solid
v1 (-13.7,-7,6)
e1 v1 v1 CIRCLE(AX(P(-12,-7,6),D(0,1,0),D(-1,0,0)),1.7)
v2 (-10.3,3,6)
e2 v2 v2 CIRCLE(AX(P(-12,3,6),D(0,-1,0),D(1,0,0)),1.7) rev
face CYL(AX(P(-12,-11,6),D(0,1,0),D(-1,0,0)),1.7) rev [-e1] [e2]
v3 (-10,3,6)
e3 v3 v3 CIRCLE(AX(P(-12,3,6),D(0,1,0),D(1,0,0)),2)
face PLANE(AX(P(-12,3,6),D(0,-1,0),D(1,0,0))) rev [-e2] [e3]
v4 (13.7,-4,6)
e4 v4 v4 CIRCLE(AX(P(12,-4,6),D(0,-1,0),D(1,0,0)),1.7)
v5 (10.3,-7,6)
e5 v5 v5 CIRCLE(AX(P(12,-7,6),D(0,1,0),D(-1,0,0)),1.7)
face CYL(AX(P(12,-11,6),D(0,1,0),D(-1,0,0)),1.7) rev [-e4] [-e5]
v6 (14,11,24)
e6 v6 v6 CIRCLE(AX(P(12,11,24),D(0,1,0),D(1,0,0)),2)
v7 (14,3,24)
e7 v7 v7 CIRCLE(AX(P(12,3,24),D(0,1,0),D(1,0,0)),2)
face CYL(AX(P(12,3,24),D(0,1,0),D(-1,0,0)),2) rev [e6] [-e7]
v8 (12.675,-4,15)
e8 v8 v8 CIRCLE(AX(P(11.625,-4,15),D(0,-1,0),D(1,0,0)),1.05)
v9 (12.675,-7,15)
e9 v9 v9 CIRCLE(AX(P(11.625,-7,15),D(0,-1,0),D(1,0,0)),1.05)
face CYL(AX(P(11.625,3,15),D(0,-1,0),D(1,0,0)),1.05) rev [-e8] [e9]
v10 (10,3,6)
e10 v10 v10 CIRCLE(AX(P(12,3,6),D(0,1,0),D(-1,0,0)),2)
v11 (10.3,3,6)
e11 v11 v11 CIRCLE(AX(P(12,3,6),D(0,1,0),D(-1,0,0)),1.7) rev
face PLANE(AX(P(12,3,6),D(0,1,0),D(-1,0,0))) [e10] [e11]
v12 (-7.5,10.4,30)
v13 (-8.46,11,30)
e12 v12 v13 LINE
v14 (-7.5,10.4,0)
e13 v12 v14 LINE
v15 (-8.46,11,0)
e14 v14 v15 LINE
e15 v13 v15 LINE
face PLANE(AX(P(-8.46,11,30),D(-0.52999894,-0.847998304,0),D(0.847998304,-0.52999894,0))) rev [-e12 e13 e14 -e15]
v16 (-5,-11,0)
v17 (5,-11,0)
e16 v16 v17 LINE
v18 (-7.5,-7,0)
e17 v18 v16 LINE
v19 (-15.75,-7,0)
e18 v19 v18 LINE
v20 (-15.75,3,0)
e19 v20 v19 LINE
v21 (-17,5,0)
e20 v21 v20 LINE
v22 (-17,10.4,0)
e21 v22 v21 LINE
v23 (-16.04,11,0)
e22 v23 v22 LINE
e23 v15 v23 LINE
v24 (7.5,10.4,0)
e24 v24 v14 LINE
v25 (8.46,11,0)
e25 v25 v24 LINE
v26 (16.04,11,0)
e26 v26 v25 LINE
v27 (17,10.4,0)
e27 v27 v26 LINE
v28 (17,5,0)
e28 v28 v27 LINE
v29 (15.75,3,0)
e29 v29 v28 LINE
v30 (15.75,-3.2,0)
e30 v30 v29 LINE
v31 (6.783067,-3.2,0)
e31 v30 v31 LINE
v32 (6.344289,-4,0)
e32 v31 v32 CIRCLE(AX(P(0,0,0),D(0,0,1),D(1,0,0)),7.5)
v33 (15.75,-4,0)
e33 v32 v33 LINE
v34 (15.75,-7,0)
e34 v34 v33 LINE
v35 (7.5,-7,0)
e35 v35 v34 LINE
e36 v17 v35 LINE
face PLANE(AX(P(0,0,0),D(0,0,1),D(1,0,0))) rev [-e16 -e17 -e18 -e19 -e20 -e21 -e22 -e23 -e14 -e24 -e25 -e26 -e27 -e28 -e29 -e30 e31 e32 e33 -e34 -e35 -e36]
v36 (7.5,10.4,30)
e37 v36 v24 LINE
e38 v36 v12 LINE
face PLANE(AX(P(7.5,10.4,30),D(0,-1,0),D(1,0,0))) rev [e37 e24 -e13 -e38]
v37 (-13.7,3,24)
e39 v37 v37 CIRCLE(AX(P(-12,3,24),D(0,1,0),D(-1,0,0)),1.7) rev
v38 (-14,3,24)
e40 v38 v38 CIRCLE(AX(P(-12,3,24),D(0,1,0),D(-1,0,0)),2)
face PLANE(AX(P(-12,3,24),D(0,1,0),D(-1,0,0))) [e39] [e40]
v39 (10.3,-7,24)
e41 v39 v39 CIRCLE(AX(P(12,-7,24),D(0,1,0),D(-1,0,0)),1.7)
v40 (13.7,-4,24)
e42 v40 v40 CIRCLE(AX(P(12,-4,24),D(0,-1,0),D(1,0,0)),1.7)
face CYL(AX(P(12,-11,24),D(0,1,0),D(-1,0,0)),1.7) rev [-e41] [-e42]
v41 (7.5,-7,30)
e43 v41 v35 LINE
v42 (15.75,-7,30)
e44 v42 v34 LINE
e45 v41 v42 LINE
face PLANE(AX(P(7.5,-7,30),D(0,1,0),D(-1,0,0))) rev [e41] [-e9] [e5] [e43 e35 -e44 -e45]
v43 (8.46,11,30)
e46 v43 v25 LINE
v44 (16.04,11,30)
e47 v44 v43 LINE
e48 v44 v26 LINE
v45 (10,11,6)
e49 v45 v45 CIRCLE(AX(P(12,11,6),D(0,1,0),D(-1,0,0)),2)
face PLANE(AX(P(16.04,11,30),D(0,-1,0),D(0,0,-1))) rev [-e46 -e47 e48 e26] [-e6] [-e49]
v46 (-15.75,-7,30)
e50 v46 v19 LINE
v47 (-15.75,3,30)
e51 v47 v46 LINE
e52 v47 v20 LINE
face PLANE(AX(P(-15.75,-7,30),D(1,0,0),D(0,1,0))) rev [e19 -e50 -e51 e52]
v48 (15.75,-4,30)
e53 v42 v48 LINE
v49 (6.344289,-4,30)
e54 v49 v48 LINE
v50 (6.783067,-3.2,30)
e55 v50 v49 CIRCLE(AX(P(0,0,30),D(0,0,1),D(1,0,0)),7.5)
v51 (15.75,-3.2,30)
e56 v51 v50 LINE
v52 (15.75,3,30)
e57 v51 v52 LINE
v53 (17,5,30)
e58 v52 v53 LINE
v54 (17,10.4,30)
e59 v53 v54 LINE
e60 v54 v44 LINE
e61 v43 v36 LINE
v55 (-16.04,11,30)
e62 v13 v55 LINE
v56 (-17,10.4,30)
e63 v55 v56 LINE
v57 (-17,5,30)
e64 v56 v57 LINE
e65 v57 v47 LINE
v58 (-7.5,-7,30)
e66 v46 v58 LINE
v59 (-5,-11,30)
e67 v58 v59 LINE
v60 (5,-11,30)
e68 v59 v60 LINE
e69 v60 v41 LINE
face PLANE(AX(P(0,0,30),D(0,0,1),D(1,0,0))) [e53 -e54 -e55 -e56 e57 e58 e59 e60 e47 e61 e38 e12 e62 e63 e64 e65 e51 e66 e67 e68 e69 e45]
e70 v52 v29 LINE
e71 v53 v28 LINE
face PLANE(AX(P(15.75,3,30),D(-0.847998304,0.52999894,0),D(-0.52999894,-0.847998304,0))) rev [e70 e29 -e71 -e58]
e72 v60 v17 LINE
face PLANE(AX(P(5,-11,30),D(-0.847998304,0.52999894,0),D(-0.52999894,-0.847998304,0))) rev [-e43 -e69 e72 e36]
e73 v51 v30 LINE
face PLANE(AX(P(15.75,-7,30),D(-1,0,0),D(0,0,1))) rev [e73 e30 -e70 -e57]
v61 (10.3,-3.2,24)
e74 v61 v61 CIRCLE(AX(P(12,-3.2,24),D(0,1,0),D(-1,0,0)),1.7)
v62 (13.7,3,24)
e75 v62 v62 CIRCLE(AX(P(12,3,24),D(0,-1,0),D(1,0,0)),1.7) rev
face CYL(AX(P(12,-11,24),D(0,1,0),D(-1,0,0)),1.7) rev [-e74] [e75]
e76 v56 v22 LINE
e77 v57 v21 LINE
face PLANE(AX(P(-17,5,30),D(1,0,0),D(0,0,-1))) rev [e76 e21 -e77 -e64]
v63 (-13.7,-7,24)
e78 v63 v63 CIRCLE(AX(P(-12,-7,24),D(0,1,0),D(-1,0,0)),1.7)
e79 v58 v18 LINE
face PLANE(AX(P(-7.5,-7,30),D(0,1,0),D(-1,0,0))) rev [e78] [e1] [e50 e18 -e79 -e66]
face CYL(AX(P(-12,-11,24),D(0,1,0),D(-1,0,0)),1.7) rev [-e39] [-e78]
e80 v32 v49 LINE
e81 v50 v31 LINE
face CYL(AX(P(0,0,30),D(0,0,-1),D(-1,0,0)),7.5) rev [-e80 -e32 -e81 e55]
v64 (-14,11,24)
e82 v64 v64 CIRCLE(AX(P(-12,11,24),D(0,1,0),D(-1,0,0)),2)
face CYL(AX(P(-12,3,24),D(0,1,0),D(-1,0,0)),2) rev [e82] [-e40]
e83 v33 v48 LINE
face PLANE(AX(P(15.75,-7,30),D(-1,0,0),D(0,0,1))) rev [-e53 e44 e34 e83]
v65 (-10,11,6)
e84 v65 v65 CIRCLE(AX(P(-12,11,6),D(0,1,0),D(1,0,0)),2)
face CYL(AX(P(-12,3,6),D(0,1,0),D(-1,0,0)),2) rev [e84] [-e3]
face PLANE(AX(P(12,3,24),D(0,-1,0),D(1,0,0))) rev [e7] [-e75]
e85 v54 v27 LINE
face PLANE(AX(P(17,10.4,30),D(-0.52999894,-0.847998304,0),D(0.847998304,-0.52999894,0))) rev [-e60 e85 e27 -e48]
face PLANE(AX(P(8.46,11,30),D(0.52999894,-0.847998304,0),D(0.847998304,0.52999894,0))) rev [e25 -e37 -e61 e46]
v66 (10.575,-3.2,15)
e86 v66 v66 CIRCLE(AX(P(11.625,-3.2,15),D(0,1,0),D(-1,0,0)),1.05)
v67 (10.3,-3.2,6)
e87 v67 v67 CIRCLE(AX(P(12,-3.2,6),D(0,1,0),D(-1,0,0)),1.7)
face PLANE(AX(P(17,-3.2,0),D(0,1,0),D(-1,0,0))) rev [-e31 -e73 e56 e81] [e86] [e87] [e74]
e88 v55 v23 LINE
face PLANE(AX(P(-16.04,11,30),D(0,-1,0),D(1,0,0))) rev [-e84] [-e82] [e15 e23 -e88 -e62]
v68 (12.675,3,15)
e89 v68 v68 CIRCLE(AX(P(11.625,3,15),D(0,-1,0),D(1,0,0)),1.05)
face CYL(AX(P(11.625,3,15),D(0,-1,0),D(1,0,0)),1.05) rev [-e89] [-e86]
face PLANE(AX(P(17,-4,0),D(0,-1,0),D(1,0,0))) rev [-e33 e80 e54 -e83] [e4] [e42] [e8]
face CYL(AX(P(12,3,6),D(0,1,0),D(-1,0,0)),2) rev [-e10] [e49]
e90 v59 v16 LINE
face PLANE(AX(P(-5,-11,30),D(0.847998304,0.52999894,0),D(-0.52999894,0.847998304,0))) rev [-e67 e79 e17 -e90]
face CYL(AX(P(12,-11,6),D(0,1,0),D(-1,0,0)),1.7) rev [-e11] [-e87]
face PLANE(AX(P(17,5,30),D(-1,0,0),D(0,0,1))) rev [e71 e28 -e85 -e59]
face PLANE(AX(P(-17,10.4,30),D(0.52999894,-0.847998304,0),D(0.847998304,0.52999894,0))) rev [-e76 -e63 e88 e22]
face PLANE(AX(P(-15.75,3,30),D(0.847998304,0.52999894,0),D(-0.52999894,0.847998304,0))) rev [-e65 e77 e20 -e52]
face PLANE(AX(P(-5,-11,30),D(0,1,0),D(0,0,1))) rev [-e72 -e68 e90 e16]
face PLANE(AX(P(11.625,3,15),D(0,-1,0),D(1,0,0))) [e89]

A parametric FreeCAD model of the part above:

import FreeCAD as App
import Part
import Sketcher
from FreeCAD import Vector
Q = App.Units.Quantity


def add_polygon(sketch, points):
    """Adds a closed chain of lines whose ends are joined by coincident constraints."""
    first, n = sketch.GeometryCount, len(points)
    for a, b in zip(points, points[1:] + points[:1]):
        sketch.addGeometry(Part.LineSegment(App.Vector(*a, 0), App.Vector(*b, 0)), False)
    for i in range(n):
        sketch.addConstraint(Sketcher.Constraint("Coincident", first + i, 2, first + (i + 1) % n, 1))

doc = App.newDocument("Part")
body = doc.addObject("PartDesign::Body", "Body")

sketch1 = body.newObject("Sketcher::SketchObject", "Sketch")
sketch1.AttachmentSupport = (doc.getObject("XY_Plane"), [""])
sketch1.MapMode = "FlatFace"
add_polygon(sketch1, [(-5, -11), (5, -11), (7.5, -7), (15.8, -7), (15.8, 3), (17, 5), (17, 10.4), (16, 11), (8.5, 11), (7.5, 10.4), (-7.5, 10.4), (-8.5, 11), (-16, 11), (-17, 10.4), (-17, 5), (-15.8, 3), (-15.8, -7), (-7.5, -7)])
sketch1.addGeometry(Part.Circle(Vector(0, 0, 0), Vector(0, 0, 1), 7.5), False)
sketch1.addConstraint(Sketcher.Constraint("Horizontal", 0))
sketch1.addConstraint(Sketcher.Constraint("Horizontal", 2))
sketch1.addConstraint(Sketcher.Constraint("Vertical", 3))
sketch1.addConstraint(Sketcher.Constraint("Vertical", 5))
sketch1.addConstraint(Sketcher.Constraint("Horizontal", 7))
sketch1.addConstraint(Sketcher.Constraint("Horizontal", 9))
sketch1.addConstraint(Sketcher.Constraint("Horizontal", 11))
sketch1.addConstraint(Sketcher.Constraint("Vertical", 13))
sketch1.addConstraint(Sketcher.Constraint("Vertical", 15))
sketch1.addConstraint(Sketcher.Constraint("Horizontal", 16))
sketch1.addConstraint(Sketcher.Constraint("Coincident", 18, 3, -1, 1))
sketch1.addConstraint(Sketcher.Constraint("Symmetric", 7, 2, 10, 2, -2))
sketch1.addConstraint(Sketcher.Constraint("Symmetric", 5, 2, 12, 2, -2))
sketch1.addConstraint(Sketcher.Constraint("Symmetric", 3, 2, 14, 2, -2))
sketch1.addConstraint(Sketcher.Constraint("Symmetric", 1, 2, 16, 2, -2))
sketch1.addConstraint(Sketcher.Constraint("Parallel", 1, 4))
sketch1.addConstraint(Sketcher.Constraint("Perpendicular", 4, 6))
sketch1.addConstraint(Sketcher.Constraint("Parallel", 6, 10))
sketch1.addConstraint(Sketcher.Constraint("Parallel", 8, 12))
sketch1.addConstraint(Sketcher.Constraint("Perpendicular", 12, 14))
sketch1.addConstraint(Sketcher.Constraint("Parallel", 14, 17))
sketch1.addConstraint(Sketcher.Constraint("Horizontal", 5, 2, 8, 2))
sketch1.addConstraint(Sketcher.Constraint("Horizontal", 4, 2, 13, 2))
sketch1.addConstraint(Sketcher.Constraint("Vertical", 1, 2, 8, 2))
sketch1.addConstraint(Sketcher.Constraint("Equal", 0, 3))
sketch1.addConstraint(Sketcher.Constraint("Diameter", 18, Q("15 mm")))
sketch1.addConstraint(Sketcher.Constraint("DistanceX", 0, 1, 0, 2, Q("10 mm")))
sketch1.addConstraint(Sketcher.Constraint("DistanceX", 9, 2, 9, 1, Q("15 mm")))
sketch1.addConstraint(Sketcher.Constraint("DistanceY", 5, 1, 5, 2, Q("5.4 mm")))
sketch1.addConstraint(Sketcher.Constraint("DistanceY", 0, 2, -1, 1, Q("11 mm")))
sketch1.addConstraint(Sketcher.Constraint("DistanceY", 1, 2, -1, 1, Q("7 mm")))
sketch1.addConstraint(Sketcher.Constraint("DistanceX", -1, 1, 4, 2, Q("17 mm")))
sketch1.addConstraint(Sketcher.Constraint("DistanceY", -1, 1, 4, 2, Q("5 mm")))
sketch1.addConstraint(Sketcher.Constraint("DistanceY", -1, 1, 6, 2, Q("11 mm")))
pad1 = body.newObject("PartDesign::Pad", "Pad")
pad1.Profile = sketch1
pad1.Length = 30

sketch2 = body.newObject("Sketcher::SketchObject", "Sketch001")
sketch2.AttachmentSupport = (doc.getObject("XY_Plane"), [""])
sketch2.MapMode = "FlatFace"
sketch2.AttachmentOffset = App.Placement(Vector(0, 0, 30), App.Rotation())
add_polygon(sketch2, [(5, -3.2), (5, -4), (17, -4), (17, -3.2)])
sketch2.addConstraint(Sketcher.Constraint("Vertical", 0))
sketch2.addConstraint(Sketcher.Constraint("Horizontal", 1))
sketch2.addConstraint(Sketcher.Constraint("Vertical", 2))
sketch2.addConstraint(Sketcher.Constraint("Horizontal", 3))
sketch2.addConstraint(Sketcher.Constraint("DistanceX", 1, 1, 1, 2, Q("12 mm")))
sketch2.addConstraint(Sketcher.Constraint("DistanceY", 0, 2, 0, 1, Q("0.8 mm")))
sketch2.addConstraint(Sketcher.Constraint("DistanceX", -1, 1, 0, 2, Q("5 mm")))
sketch2.addConstraint(Sketcher.Constraint("DistanceY", 0, 2, -1, 1, Q("4 mm")))
pocket1 = body.newObject("PartDesign::Pocket", "Pocket")
pocket1.Profile = sketch2
pocket1.Type = "ThroughAll"

sketch3 = body.newObject("Sketcher::SketchObject", "Sketch002")
sketch3.AttachmentSupport = (doc.getObject("XZ_Plane"), [""])
sketch3.MapMode = "FlatFace"
sketch3.AttachmentOffset = App.Placement(Vector(0, 0, 7), App.Rotation())
sketch3.addGeometry(Part.Circle(Vector(11.6, 15, 0), Vector(0, 0, 1), 1.1), False)
sketch3.addConstraint(Sketcher.Constraint("Diameter", 0, Q("2.1 mm")))
sketch3.addConstraint(Sketcher.Constraint("DistanceY", -1, 1, 0, 3, Q("15 mm")))
sketch3.addConstraint(Sketcher.Constraint("DistanceX", -1, 1, 0, 3, Q("11.625 mm")))
pocket2 = body.newObject("PartDesign::Pocket", "Pocket001")
pocket2.Profile = sketch3
pocket2.Length = 10

sketch4 = body.newObject("Sketcher::SketchObject", "Sketch003")
sketch4.AttachmentSupport = (doc.getObject("XZ_Plane"), [""])
sketch4.MapMode = "FlatFace"
sketch4.AttachmentOffset = App.Placement(Vector(0, 0, -11), App.Rotation())
sketch4.addGeometry(Part.Circle(Vector(12, 6, 0), Vector(0, 0, 1), 1.7), False)
sketch4.addGeometry(Part.Circle(Vector(-12, 6, 0), Vector(0, 0, 1), 1.7), False)
sketch4.addGeometry(Part.Circle(Vector(-12, 24, 0), Vector(0, 0, 1), 1.7), False)
sketch4.addGeometry(Part.Circle(Vector(12, 24, 0), Vector(0, 0, 1), 1.7), False)
sketch4.addConstraint(Sketcher.Constraint("Equal", 0, 1))
sketch4.addConstraint(Sketcher.Constraint("Equal", 1, 2))
sketch4.addConstraint(Sketcher.Constraint("Equal", 2, 3))
sketch4.addConstraint(Sketcher.Constraint("Symmetric", 0, 3, 1, 3, -2))
sketch4.addConstraint(Sketcher.Constraint("Symmetric", 2, 3, 3, 3, -2))
sketch4.addConstraint(Sketcher.Constraint("Vertical", 1, 3, 2, 3))
sketch4.addConstraint(Sketcher.Constraint("Diameter", 0, Q("3.4 mm")))
sketch4.addConstraint(Sketcher.Constraint("DistanceX", -1, 1, 0, 3, Q("12 mm")))
sketch4.addConstraint(Sketcher.Constraint("DistanceY", -1, 1, 0, 3, Q("6 mm")))
sketch4.addConstraint(Sketcher.Constraint("DistanceY", -1, 1, 2, 3, Q("24 mm")))
pocket3 = body.newObject("PartDesign::Pocket", "Pocket002")
pocket3.Profile = sketch4
pocket3.Type = "ThroughAll"
pocket3.Reversed = True

sketch5 = body.newObject("Sketcher::SketchObject", "Sketch004")
sketch5.AttachmentSupport = (doc.getObject("XZ_Plane"), [""])
sketch5.MapMode = "FlatFace"
sketch5.AttachmentOffset = App.Placement(Vector(0, 0, -11), App.Rotation())
sketch5.addGeometry(Part.Circle(Vector(12, 6, 0), Vector(0, 0, 1), 2), False)
sketch5.addGeometry(Part.Circle(Vector(-12, 6, 0), Vector(0, 0, 1), 2), False)
sketch5.addGeometry(Part.Circle(Vector(-12, 24, 0), Vector(0, 0, 1), 2), False)
sketch5.addGeometry(Part.Circle(Vector(12, 24, 0), Vector(0, 0, 1), 2), False)
sketch5.addConstraint(Sketcher.Constraint("Equal", 0, 1))
sketch5.addConstraint(Sketcher.Constraint("Equal", 1, 2))
sketch5.addConstraint(Sketcher.Constraint("Equal", 2, 3))
sketch5.addConstraint(Sketcher.Constraint("Symmetric", 0, 3, 1, 3, -2))
sketch5.addConstraint(Sketcher.Constraint("Symmetric", 2, 3, 3, 3, -2))
sketch5.addConstraint(Sketcher.Constraint("Vertical", 1, 3, 2, 3))
sketch5.addConstraint(Sketcher.Constraint("Diameter", 0, Q("4 mm")))
sketch5.addConstraint(Sketcher.Constraint("DistanceX", -1, 1, 0, 3, Q("12 mm")))
sketch5.addConstraint(Sketcher.Constraint("DistanceY", -1, 1, 0, 3, Q("6 mm")))
sketch5.addConstraint(Sketcher.Constraint("DistanceY", -1, 1, 2, 3, Q("24 mm")))
pocket4 = body.newObject("PartDesign::Pocket", "Pocket003")
pocket4.Profile = sketch5
pocket4.Length = 8
pocket4.Reversed = True

doc.recompute()
